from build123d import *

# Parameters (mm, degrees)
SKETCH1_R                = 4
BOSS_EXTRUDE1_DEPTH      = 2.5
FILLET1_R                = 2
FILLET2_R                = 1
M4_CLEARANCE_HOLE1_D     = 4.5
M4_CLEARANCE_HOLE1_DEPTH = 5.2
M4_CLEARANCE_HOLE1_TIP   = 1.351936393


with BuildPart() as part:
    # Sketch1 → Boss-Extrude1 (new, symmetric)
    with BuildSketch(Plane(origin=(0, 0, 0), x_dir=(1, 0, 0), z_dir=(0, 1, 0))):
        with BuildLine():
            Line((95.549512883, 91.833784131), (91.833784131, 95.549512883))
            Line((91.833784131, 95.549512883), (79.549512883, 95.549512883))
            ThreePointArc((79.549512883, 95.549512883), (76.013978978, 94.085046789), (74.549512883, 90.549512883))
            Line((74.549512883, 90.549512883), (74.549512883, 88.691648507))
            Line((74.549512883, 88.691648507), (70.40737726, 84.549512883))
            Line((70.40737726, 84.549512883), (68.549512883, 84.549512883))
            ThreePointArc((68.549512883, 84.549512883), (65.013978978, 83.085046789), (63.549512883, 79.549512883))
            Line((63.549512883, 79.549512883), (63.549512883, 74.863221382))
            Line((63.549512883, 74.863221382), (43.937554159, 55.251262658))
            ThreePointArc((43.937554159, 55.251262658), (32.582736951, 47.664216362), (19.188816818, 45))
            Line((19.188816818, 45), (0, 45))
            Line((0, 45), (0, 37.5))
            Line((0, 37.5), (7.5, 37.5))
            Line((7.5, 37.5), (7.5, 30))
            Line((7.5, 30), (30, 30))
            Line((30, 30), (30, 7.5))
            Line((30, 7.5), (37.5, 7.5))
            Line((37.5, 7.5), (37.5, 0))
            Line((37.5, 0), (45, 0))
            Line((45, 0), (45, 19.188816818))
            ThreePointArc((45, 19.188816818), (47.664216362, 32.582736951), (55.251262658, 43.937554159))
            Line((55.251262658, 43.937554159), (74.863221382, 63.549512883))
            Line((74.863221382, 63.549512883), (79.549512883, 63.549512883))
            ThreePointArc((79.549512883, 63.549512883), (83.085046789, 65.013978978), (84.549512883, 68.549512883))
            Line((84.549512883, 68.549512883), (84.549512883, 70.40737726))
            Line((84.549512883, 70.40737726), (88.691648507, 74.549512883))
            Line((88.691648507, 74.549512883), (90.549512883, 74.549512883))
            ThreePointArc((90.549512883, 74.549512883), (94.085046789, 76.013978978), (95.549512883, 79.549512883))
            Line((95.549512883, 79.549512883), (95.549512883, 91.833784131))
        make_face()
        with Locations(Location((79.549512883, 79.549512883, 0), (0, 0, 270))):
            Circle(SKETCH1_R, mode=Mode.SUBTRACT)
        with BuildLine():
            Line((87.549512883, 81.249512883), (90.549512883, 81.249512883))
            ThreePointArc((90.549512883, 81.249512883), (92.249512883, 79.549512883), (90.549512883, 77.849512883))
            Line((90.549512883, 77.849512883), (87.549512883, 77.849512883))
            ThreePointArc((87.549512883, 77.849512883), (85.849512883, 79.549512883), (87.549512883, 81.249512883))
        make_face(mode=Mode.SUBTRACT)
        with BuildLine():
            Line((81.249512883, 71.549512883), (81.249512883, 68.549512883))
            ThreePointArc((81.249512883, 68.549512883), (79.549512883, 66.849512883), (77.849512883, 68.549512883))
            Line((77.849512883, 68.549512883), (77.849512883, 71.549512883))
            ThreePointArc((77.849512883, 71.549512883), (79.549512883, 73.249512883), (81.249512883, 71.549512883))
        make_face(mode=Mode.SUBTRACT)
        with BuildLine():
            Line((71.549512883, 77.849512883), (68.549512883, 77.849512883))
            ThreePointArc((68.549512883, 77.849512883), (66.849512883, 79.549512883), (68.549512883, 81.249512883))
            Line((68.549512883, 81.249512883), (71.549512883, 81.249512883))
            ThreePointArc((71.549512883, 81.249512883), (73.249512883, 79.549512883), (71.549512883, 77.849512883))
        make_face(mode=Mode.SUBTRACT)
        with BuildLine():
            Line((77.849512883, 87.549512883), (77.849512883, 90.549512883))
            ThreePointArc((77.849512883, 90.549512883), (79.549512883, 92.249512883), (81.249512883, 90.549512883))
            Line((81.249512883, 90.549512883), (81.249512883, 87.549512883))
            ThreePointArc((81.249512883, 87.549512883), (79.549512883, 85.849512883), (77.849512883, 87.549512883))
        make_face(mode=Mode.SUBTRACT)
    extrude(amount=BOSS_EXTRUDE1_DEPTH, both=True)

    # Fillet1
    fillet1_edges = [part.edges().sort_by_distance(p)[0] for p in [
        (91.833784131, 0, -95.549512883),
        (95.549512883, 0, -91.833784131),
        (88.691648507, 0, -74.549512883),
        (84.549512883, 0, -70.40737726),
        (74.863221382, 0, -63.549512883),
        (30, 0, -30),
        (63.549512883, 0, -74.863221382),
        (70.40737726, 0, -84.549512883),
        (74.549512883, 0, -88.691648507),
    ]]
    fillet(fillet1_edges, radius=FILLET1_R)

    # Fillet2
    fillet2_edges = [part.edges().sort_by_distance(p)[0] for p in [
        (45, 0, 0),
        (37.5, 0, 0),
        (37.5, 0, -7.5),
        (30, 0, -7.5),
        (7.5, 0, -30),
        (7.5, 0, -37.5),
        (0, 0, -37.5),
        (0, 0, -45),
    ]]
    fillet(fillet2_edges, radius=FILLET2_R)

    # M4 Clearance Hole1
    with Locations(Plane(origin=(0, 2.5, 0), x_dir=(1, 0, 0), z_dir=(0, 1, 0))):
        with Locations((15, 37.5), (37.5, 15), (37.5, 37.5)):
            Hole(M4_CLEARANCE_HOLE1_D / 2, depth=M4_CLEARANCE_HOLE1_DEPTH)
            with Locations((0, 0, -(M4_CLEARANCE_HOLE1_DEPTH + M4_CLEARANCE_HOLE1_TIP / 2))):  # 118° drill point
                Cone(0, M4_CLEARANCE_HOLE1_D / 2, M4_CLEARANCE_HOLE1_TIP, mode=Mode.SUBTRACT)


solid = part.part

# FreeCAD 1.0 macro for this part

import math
import FreeCAD as App
import Part
import Sketcher
from FreeCAD import Vector
Q = App.Units.Quantity


def edges_at(feature, points):
    """Names of the edges that pass closest to the given points."""
    edges = feature.Shape.Edges
    near = lambda p: min(range(len(edges)), key=lambda i: edges[i].distToShape(Part.Vertex(*p))[0])
    return sorted({f"Edge{near(p) + 1}" for p in points})

doc = App.newDocument("Part")
body = doc.addObject("PartDesign::Body", "Body")

# Sketch on XZ plane
sketch1 = body.newObject("Sketcher::SketchObject", "Sketch")
sketch1.AttachmentSupport = (doc.getObject("XZ_Plane"), [""])
sketch1.MapMode = "FlatFace"
sketch1.addGeometry(Part.LineSegment(Vector(95.5, -91.8, 0), Vector(91.8, -95.5, 0)), False)
sketch1.addGeometry(Part.LineSegment(Vector(91.8, -95.5, 0), Vector(79.5, -95.5, 0)), False)
sketch1.addGeometry(Part.ArcOfCircle(Part.Circle(Vector(79.5, -90.5, 0), Vector(0, 0, 1), 5), math.radians(-180), math.radians(-90)), False)
sketch1.addGeometry(Part.LineSegment(Vector(74.5, -90.5, 0), Vector(74.5, -88.7, 0)), False)
sketch1.addGeometry(Part.LineSegment(Vector(74.5, -88.7, 0), Vector(70.4, -84.5, 0)), False)
sketch1.addGeometry(Part.LineSegment(Vector(70.4, -84.5, 0), Vector(68.5, -84.5, 0)), False)
sketch1.addGeometry(Part.ArcOfCircle(Part.Circle(Vector(68.5, -79.5, 0), Vector(0, 0, 1), 5), math.radians(-180), math.radians(-90)), False)
sketch1.addGeometry(Part.LineSegment(Vector(63.5, -79.5, 0), Vector(63.5, -74.9, 0)), False)
sketch1.addGeometry(Part.LineSegment(Vector(63.5, -74.9, 0), Vector(43.9, -55.3, 0)), False)
sketch1.addGeometry(Part.ArcOfCircle(Part.Circle(Vector(19.2, -80, 0), Vector(0, 0, 1), 35), math.radians(45), math.radians(90)), False)
sketch1.addGeometry(Part.LineSegment(Vector(19.2, -45, 0), Vector(0, -45, 0)), False)
sketch1.addGeometry(Part.LineSegment(Vector(0, -45, 0), Vector(0, -37.5, 0)), False)
sketch1.addGeometry(Part.LineSegment(Vector(0, -37.5, 0), Vector(7.5, -37.5, 0)), False)
sketch1.addGeometry(Part.LineSegment(Vector(7.5, -37.5, 0), Vector(7.5, -30, 0)), False)
sketch1.addGeometry(Part.LineSegment(Vector(7.5, -30, 0), Vector(30, -30, 0)), False)
sketch1.addGeometry(Part.LineSegment(Vector(30, -30, 0), Vector(30, -7.5, 0)), False)
sketch1.addGeometry(Part.LineSegment(Vector(30, -7.5, 0), Vector(37.5, -7.5, 0)), False)
sketch1.addGeometry(Part.LineSegment(Vector(37.5, -7.5, 0), Vector(37.5, 0, 0)), False)
sketch1.addGeometry(Part.LineSegment(Vector(37.5, 0, 0), Vector(45, 0, 0)), False)
sketch1.addGeometry(Part.LineSegment(Vector(45, 0, 0), Vector(45, -19.2, 0)), False)
sketch1.addGeometry(Part.ArcOfCircle(Part.Circle(Vector(80, -19.2, 0), Vector(0, 0, 1), 35), math.radians(180), math.radians(225)), False)
sketch1.addGeometry(Part.LineSegment(Vector(55.3, -43.9, 0), Vector(74.9, -63.5, 0)), False)
sketch1.addGeometry(Part.LineSegment(Vector(74.9, -63.5, 0), Vector(79.5, -63.5, 0)), False)
sketch1.addGeometry(Part.ArcOfCircle(Part.Circle(Vector(79.5, -68.5, 0), Vector(0, 0, 1), 5), math.radians(0), math.radians(90)), False)
sketch1.addGeometry(Part.LineSegment(Vector(84.5, -68.5, 0), Vector(84.5, -70.4, 0)), False)
sketch1.addGeometry(Part.LineSegment(Vector(84.5, -70.4, 0), Vector(88.7, -74.5, 0)), False)
sketch1.addGeometry(Part.LineSegment(Vector(88.7, -74.5, 0), Vector(90.5, -74.5, 0)), False)
sketch1.addGeometry(Part.ArcOfCircle(Part.Circle(Vector(90.5, -79.5, 0), Vector(0, 0, 1), 5), math.radians(0), math.radians(90)), False)
sketch1.addGeometry(Part.LineSegment(Vector(95.5, -79.5, 0), Vector(95.5, -91.8, 0)), False)
sketch1.addGeometry(Part.ArcOfCircle(Part.Circle(Vector(79.5, -71.5, 0), Vector(0, 0, 1), 1.7), math.radians(180), math.radians(360)), False)
sketch1.addGeometry(Part.LineSegment(Vector(81.2, -71.5, 0), Vector(81.2, -68.5, 0)), False)
sketch1.addGeometry(Part.ArcOfCircle(Part.Circle(Vector(79.5, -68.5, 0), Vector(0, 0, 1), 1.7), math.radians(0), math.radians(180)), False)
sketch1.addGeometry(Part.LineSegment(Vector(77.8, -68.5, 0), Vector(77.8, -71.5, 0)), False)
sketch1.addGeometry(Part.ArcOfCircle(Part.Circle(Vector(71.5, -79.5, 0), Vector(0, 0, 1), 1.7), math.radians(-90), math.radians(90)), False)
sketch1.addGeometry(Part.LineSegment(Vector(71.5, -77.8, 0), Vector(68.5, -77.8, 0)), False)
sketch1.addGeometry(Part.ArcOfCircle(Part.Circle(Vector(68.5, -79.5, 0), Vector(0, 0, 1), 1.7), math.radians(90), math.radians(270)), False)
sketch1.addGeometry(Part.LineSegment(Vector(68.5, -81.2, 0), Vector(71.5, -81.2, 0)), False)
sketch1.addGeometry(Part.Circle(Vector(79.5, -79.5, 0), Vector(0, 0, 1), 4), False)
sketch1.addGeometry(Part.ArcOfCircle(Part.Circle(Vector(87.5, -79.5, 0), Vector(0, 0, 1), 1.7), math.radians(90), math.radians(270)), False)
sketch1.addGeometry(Part.LineSegment(Vector(87.5, -81.2, 0), Vector(90.5, -81.2, 0)), False)
sketch1.addGeometry(Part.ArcOfCircle(Part.Circle(Vector(90.5, -79.5, 0), Vector(0, 0, 1), 1.7), math.radians(-90), math.radians(90)), False)
sketch1.addGeometry(Part.LineSegment(Vector(90.5, -77.8, 0), Vector(87.5, -77.8, 0)), False)
sketch1.addGeometry(Part.ArcOfCircle(Part.Circle(Vector(79.5, -87.5, 0), Vector(0, 0, 1), 1.7), math.radians(0), math.radians(180)), False)
sketch1.addGeometry(Part.LineSegment(Vector(77.8, -87.5, 0), Vector(77.8, -90.5, 0)), False)
sketch1.addGeometry(Part.ArcOfCircle(Part.Circle(Vector(79.5, -90.5, 0), Vector(0, 0, 1), 1.7), math.radians(180), math.radians(360)), False)
sketch1.addGeometry(Part.LineSegment(Vector(81.2, -90.5, 0), Vector(81.2, -87.5, 0)), False)
sketch1.addConstraint(Sketcher.Constraint("Coincident", 0, 2, 1, 1))
sketch1.addConstraint(Sketcher.Constraint("Tangent", 1, 2, 2, 2))
sketch1.addConstraint(Sketcher.Constraint("Tangent", 2, 1, 3, 1))
sketch1.addConstraint(Sketcher.Constraint("Coincident", 3, 2, 4, 1))
sketch1.addConstraint(Sketcher.Constraint("Coincident", 4, 2, 5, 1))
sketch1.addConstraint(Sketcher.Constraint("Tangent", 5, 2, 6, 2))
sketch1.addConstraint(Sketcher.Constraint("Tangent", 6, 1, 7, 1))
sketch1.addConstraint(Sketcher.Constraint("Coincident", 7, 2, 8, 1))
sketch1.addConstraint(Sketcher.Constraint("Tangent", 8, 2, 9, 1))
sketch1.addConstraint(Sketcher.Constraint("Tangent", 9, 2, 10, 1))
sketch1.addConstraint(Sketcher.Constraint("Coincident", 10, 2, 11, 1))
sketch1.addConstraint(Sketcher.Constraint("Coincident", 11, 2, 12, 1))
sketch1.addConstraint(Sketcher.Constraint("Coincident", 12, 2, 13, 1))
sketch1.addConstraint(Sketcher.Constraint("Coincident", 13, 2, 14, 1))
sketch1.addConstraint(Sketcher.Constraint("Coincident", 14, 2, 15, 1))
sketch1.addConstraint(Sketcher.Constraint("Coincident", 15, 2, 16, 1))
sketch1.addConstraint(Sketcher.Constraint("Coincident", 16, 2, 17, 1))
sketch1.addConstraint(Sketcher.Constraint("Coincident", 17, 2, 18, 1))
sketch1.addConstraint(Sketcher.Constraint("Coincident", 18, 2, 19, 1))
sketch1.addConstraint(Sketcher.Constraint("Tangent", 19, 2, 20, 1))
sketch1.addConstraint(Sketcher.Constraint("Tangent", 20, 2, 21, 1))
sketch1.addConstraint(Sketcher.Constraint("Coincident", 21, 2, 22, 1))
sketch1.addConstraint(Sketcher.Constraint("Tangent", 22, 2, 23, 2))
sketch1.addConstraint(Sketcher.Constraint("Tangent", 23, 1, 24, 1))
sketch1.addConstraint(Sketcher.Constraint("Coincident", 24, 2, 25, 1))
sketch1.addConstraint(Sketcher.Constraint("Coincident", 25, 2, 26, 1))
sketch1.addConstraint(Sketcher.Constraint("Tangent", 26, 2, 27, 2))
sketch1.addConstraint(Sketcher.Constraint("Tangent", 27, 1, 28, 1))
sketch1.addConstraint(Sketcher.Constraint("Coincident", 28, 2, 0, 1))
sketch1.addConstraint(Sketcher.Constraint("Tangent", 29, 2, 30, 1))
sketch1.addConstraint(Sketcher.Constraint("Tangent", 30, 2, 31, 1))
sketch1.addConstraint(Sketcher.Constraint("Tangent", 31, 2, 32, 1))
sketch1.addConstraint(Sketcher.Constraint("Tangent", 32, 2, 29, 1))
sketch1.addConstraint(Sketcher.Constraint("Tangent", 33, 2, 34, 1))
sketch1.addConstraint(Sketcher.Constraint("Tangent", 34, 2, 35, 1))
sketch1.addConstraint(Sketcher.Constraint("Tangent", 35, 2, 36, 1))
sketch1.addConstraint(Sketcher.Constraint("Tangent", 36, 2, 33, 1))
sketch1.addConstraint(Sketcher.Constraint("Tangent", 38, 2, 39, 1))
sketch1.addConstraint(Sketcher.Constraint("Tangent", 39, 2, 40, 1))
sketch1.addConstraint(Sketcher.Constraint("Tangent", 40, 2, 41, 1))
sketch1.addConstraint(Sketcher.Constraint("Tangent", 41, 2, 38, 1))
sketch1.addConstraint(Sketcher.Constraint("Tangent", 42, 2, 43, 1))
sketch1.addConstraint(Sketcher.Constraint("Tangent", 43, 2, 44, 1))
sketch1.addConstraint(Sketcher.Constraint("Tangent", 44, 2, 45, 1))
sketch1.addConstraint(Sketcher.Constraint("Tangent", 45, 2, 42, 1))
sketch1.addConstraint(Sketcher.Constraint("Horizontal", 1))
sketch1.addConstraint(Sketcher.Constraint("Vertical", 3))
sketch1.addConstraint(Sketcher.Constraint("Horizontal", 5))
sketch1.addConstraint(Sketcher.Constraint("Vertical", 7))
sketch1.addConstraint(Sketcher.Constraint("Horizontal", 10))
sketch1.addConstraint(Sketcher.Constraint("Vertical", 11))
sketch1.addConstraint(Sketcher.Constraint("Horizontal", 12))
sketch1.addConstraint(Sketcher.Constraint("Vertical", 13))
sketch1.addConstraint(Sketcher.Constraint("Horizontal", 14))
sketch1.addConstraint(Sketcher.Constraint("Vertical", 15))
sketch1.addConstraint(Sketcher.Constraint("Horizontal", 16))
sketch1.addConstraint(Sketcher.Constraint("Vertical", 17))
sketch1.addConstraint(Sketcher.Constraint("Horizontal", 18))
sketch1.addConstraint(Sketcher.Constraint("Vertical", 19))
sketch1.addConstraint(Sketcher.Constraint("Horizontal", 22))
sketch1.addConstraint(Sketcher.Constraint("Vertical", 24))
sketch1.addConstraint(Sketcher.Constraint("Horizontal", 26))
sketch1.addConstraint(Sketcher.Constraint("Vertical", 28))
sketch1.addConstraint(Sketcher.Constraint("Vertical", 30))
sketch1.addConstraint(Sketcher.Constraint("Vertical", 32))
sketch1.addConstraint(Sketcher.Constraint("Horizontal", 34))
sketch1.addConstraint(Sketcher.Constraint("Horizontal", 36))
sketch1.addConstraint(Sketcher.Constraint("Horizontal", 39))
sketch1.addConstraint(Sketcher.Constraint("Horizontal", 41))
sketch1.addConstraint(Sketcher.Constraint("Vertical", 43))
sketch1.addConstraint(Sketcher.Constraint("Vertical", 45))
sketch1.addConstraint(Sketcher.Constraint("Coincident", 31, 3, 23, 3))
sketch1.addConstraint(Sketcher.Constraint("Coincident", 35, 3, 6, 3))
sketch1.addConstraint(Sketcher.Constraint("Coincident", 40, 3, 27, 3))
sketch1.addConstraint(Sketcher.Constraint("Coincident", 44, 3, 2, 3))
sketch1.addConstraint(Sketcher.Constraint("Equal", 2, 6))
sketch1.addConstraint(Sketcher.Constraint("Equal", 9, 20))
sketch1.addConstraint(Sketcher.Constraint("Equal", 6, 23))
sketch1.addConstraint(Sketcher.Constraint("Equal", 23, 27))
sketch1.addConstraint(Sketcher.Constraint("Equal", 31, 33))
sketch1.addConstraint(Sketcher.Constraint("Equal", 35, 38))
sketch1.addConstraint(Sketcher.Constraint("Equal", 40, 42))
sketch1.addConstraint(Sketcher.Constraint("PointOnObject", 10, 2, -2))
sketch1.addConstraint(Sketcher.Constraint("PointOnObject", 17, 2, -1))
sketch1.addConstraint(Sketcher.Constraint("Perpendicular", 0, 4))
sketch1.addConstraint(Sketcher.Constraint("Parallel", 4, 8))
sketch1.addConstraint(Sketcher.Constraint("Parallel", 8, 21))
sketch1.addConstraint(Sketcher.Constraint("Parallel", 21, 25))
sketch1.addConstraint(Sketcher.Constraint("Horizontal", 6, 3, 27, 3))
sketch1.addConstraint(Sketcher.Constraint("Horizontal", 35, 3, 37, 3))
sketch1.addConstraint(Sketcher.Constraint("Vertical", 2, 3, 23, 3))
sketch1.addConstraint(Sketcher.Constraint("Vertical", 31, 3, 37, 3))
sketch1.addConstraint(Sketcher.Constraint("Equal", 12, 16))
sketch1.addConstraint(Sketcher.Constraint("Equal", 16, 18))
sketch1.addConstraint(Sketcher.Constraint("Equal", 5, 26))
sketch1.addConstraint(Sketcher.Constraint("Equal", 36, 39))
sketch1.addConstraint(Sketcher.Constraint("Equal", 26, 3))
sketch1.addConstraint(Sketcher.Constraint("Equal", 22, 7))
sketch1.addConstraint(Sketcher.Constraint("Equal", 18, 11))
sketch1.addConstraint(Sketcher.Constraint("Equal", 11, 13))
sketch1.addConstraint(Sketcher.Constraint("Equal", 14, 15))
sketch1.addConstraint(Sketcher.Constraint("Equal", 13, 17))
sketch1.addConstraint(Sketcher.Constraint("Equal", 10, 19))
sketch1.addConstraint(Sketcher.Constraint("Equal", 3, 24))
sketch1.addConstraint(Sketcher.Constraint("Equal", 1, 28))
sketch1.addConstraint(Sketcher.Constraint("Equal", 41, 30))
sketch1.addConstraint(Sketcher.Constraint("Equal", 32, 43))
sketch1.addConstraint(Sketcher.Constraint("Equal", 8, 21))
sketch1.addConstraint(Sketcher.Constraint("Diameter", 37, Q("8 mm")))
sketch1.addConstraint(Sketcher.Constraint("Radius", 2, Q("5 mm")))
sketch1.addConstraint(Sketcher.Constraint("Radius", 9, Q("35 mm")))
sketch1.addConstraint(Sketcher.Constraint("Radius", 29, Q("1.7 mm")))
sketch1.addConstraint(Sketcher.Constraint("DistanceX", 34, 2, 34, 1, Q("3 mm")))
sketch1.addConstraint(Sketcher.Constraint("DistanceX", 12, 1, 12, 2, Q("7.5 mm")))
sketch1.addConstraint(Sketcher.Constraint("DistanceX", 14, 1, 14, 2, Q("22.5 mm")))
sketch1.addConstraint(Sketcher.Constraint("DistanceX", 6, 3, 2, 3, Q("11 mm")))
sketch1.addConstraint(Sketcher.Constraint("Distance", 8, Q("27.735498 mm")))
sketch1.addConstraint(Sketcher.Constraint("DistanceX", 1, 2, 1, 1, Q("12.284271 mm")))
sketch1.addConstraint(Sketcher.Constraint("DistanceX", 22, 1, 22, 2, Q("4.686292 mm")))
sketch1.addConstraint(Sketcher.Constraint("DistanceX", 5, 2, 5, 1, Q("1.857864 mm")))
pad1 = body.newObject("PartDesign::Pad", "Pad")
pad1.Profile = sketch1
pad1.Length = 5
pad1.Midplane = True
doc.recompute()

fillet = body.newObject("PartDesign::Fillet", "Fillet")
fillet.Base = (pad1, edges_at(pad1, [
    (91.834, 0, -95.55),
    (95.55, 0, -91.834),
    (88.692, 0, -74.55),
    (84.55, 0, -70.407),
    (74.863, 0, -63.55),
    (30, 0, -30),
    (63.55, 0, -74.863),
    (70.407, 0, -84.55),
    (74.55, 0, -88.692),
]))
fillet.Radius = 2
doc.recompute()

fillet2 = body.newObject("PartDesign::Fillet", "Fillet001")
fillet2.Base = (fillet, edges_at(fillet, [
    (45, 0, 0),
    (37.5, 0, 0),
    (37.5, 0, -7.5),
    (30, 0, -7.5),
    (7.5, 0, -30),
    (7.5, 0, -37.5),
    (0, 0, -37.5),
    (0, 0, -45),
]))
fillet2.Radius = 1

# Sketch on XZ plane
sketch2 = body.newObject("Sketcher::SketchObject", "Sketch001")
sketch2.AttachmentSupport = (doc.getObject("XZ_Plane"), [""])
sketch2.MapMode = "FlatFace"
sketch2.AttachmentOffset = App.Placement(Vector(0, 0, -2.5), App.Rotation())
sketch2.addGeometry(Part.Circle(Vector(15, -37.5, 0), Vector(0, 0, 1), 2.2), False)
sketch2.addGeometry(Part.Circle(Vector(37.5, -15, 0), Vector(0, 0, 1), 2.2), False)
sketch2.addGeometry(Part.Circle(Vector(37.5, -37.5, 0), Vector(0, 0, 1), 2.2), False)
sketch2.addConstraint(Sketcher.Constraint("Equal", 0, 1))
sketch2.addConstraint(Sketcher.Constraint("Equal", 1, 2))
sketch2.addConstraint(Sketcher.Constraint("Horizontal", 0, 3, 2, 3))
sketch2.addConstraint(Sketcher.Constraint("Vertical", 1, 3, 2, 3))
sketch2.addConstraint(Sketcher.Constraint("Diameter", 0, Q("4.5 mm")))
sketch2.addConstraint(Sketcher.Constraint("DistanceX", -1, 1, 0, 3, Q("15 mm")))
sketch2.addConstraint(Sketcher.Constraint("DistanceY", 1, 3, -1, 1, Q("15 mm")))
sketch2.addConstraint(Sketcher.Constraint("DistanceY", 0, 3, -1, 1, Q("37.5 mm")))
sketch2.addConstraint(Sketcher.Constraint("DistanceX", -1, 1, 1, 3, Q("37.5 mm")))
doc.recompute()
hole = body.newObject("PartDesign::Hole", "Hole")
hole.Profile = sketch2
hole.ThreadType = "None"
hole.Diameter = 4.5
hole.DepthType = "Dimension"
hole.Depth = 5.2
hole.DrillPoint = "Angled"
hole.DrillPointAngle = 118
hole.Reversed = True

doc.recompute()
